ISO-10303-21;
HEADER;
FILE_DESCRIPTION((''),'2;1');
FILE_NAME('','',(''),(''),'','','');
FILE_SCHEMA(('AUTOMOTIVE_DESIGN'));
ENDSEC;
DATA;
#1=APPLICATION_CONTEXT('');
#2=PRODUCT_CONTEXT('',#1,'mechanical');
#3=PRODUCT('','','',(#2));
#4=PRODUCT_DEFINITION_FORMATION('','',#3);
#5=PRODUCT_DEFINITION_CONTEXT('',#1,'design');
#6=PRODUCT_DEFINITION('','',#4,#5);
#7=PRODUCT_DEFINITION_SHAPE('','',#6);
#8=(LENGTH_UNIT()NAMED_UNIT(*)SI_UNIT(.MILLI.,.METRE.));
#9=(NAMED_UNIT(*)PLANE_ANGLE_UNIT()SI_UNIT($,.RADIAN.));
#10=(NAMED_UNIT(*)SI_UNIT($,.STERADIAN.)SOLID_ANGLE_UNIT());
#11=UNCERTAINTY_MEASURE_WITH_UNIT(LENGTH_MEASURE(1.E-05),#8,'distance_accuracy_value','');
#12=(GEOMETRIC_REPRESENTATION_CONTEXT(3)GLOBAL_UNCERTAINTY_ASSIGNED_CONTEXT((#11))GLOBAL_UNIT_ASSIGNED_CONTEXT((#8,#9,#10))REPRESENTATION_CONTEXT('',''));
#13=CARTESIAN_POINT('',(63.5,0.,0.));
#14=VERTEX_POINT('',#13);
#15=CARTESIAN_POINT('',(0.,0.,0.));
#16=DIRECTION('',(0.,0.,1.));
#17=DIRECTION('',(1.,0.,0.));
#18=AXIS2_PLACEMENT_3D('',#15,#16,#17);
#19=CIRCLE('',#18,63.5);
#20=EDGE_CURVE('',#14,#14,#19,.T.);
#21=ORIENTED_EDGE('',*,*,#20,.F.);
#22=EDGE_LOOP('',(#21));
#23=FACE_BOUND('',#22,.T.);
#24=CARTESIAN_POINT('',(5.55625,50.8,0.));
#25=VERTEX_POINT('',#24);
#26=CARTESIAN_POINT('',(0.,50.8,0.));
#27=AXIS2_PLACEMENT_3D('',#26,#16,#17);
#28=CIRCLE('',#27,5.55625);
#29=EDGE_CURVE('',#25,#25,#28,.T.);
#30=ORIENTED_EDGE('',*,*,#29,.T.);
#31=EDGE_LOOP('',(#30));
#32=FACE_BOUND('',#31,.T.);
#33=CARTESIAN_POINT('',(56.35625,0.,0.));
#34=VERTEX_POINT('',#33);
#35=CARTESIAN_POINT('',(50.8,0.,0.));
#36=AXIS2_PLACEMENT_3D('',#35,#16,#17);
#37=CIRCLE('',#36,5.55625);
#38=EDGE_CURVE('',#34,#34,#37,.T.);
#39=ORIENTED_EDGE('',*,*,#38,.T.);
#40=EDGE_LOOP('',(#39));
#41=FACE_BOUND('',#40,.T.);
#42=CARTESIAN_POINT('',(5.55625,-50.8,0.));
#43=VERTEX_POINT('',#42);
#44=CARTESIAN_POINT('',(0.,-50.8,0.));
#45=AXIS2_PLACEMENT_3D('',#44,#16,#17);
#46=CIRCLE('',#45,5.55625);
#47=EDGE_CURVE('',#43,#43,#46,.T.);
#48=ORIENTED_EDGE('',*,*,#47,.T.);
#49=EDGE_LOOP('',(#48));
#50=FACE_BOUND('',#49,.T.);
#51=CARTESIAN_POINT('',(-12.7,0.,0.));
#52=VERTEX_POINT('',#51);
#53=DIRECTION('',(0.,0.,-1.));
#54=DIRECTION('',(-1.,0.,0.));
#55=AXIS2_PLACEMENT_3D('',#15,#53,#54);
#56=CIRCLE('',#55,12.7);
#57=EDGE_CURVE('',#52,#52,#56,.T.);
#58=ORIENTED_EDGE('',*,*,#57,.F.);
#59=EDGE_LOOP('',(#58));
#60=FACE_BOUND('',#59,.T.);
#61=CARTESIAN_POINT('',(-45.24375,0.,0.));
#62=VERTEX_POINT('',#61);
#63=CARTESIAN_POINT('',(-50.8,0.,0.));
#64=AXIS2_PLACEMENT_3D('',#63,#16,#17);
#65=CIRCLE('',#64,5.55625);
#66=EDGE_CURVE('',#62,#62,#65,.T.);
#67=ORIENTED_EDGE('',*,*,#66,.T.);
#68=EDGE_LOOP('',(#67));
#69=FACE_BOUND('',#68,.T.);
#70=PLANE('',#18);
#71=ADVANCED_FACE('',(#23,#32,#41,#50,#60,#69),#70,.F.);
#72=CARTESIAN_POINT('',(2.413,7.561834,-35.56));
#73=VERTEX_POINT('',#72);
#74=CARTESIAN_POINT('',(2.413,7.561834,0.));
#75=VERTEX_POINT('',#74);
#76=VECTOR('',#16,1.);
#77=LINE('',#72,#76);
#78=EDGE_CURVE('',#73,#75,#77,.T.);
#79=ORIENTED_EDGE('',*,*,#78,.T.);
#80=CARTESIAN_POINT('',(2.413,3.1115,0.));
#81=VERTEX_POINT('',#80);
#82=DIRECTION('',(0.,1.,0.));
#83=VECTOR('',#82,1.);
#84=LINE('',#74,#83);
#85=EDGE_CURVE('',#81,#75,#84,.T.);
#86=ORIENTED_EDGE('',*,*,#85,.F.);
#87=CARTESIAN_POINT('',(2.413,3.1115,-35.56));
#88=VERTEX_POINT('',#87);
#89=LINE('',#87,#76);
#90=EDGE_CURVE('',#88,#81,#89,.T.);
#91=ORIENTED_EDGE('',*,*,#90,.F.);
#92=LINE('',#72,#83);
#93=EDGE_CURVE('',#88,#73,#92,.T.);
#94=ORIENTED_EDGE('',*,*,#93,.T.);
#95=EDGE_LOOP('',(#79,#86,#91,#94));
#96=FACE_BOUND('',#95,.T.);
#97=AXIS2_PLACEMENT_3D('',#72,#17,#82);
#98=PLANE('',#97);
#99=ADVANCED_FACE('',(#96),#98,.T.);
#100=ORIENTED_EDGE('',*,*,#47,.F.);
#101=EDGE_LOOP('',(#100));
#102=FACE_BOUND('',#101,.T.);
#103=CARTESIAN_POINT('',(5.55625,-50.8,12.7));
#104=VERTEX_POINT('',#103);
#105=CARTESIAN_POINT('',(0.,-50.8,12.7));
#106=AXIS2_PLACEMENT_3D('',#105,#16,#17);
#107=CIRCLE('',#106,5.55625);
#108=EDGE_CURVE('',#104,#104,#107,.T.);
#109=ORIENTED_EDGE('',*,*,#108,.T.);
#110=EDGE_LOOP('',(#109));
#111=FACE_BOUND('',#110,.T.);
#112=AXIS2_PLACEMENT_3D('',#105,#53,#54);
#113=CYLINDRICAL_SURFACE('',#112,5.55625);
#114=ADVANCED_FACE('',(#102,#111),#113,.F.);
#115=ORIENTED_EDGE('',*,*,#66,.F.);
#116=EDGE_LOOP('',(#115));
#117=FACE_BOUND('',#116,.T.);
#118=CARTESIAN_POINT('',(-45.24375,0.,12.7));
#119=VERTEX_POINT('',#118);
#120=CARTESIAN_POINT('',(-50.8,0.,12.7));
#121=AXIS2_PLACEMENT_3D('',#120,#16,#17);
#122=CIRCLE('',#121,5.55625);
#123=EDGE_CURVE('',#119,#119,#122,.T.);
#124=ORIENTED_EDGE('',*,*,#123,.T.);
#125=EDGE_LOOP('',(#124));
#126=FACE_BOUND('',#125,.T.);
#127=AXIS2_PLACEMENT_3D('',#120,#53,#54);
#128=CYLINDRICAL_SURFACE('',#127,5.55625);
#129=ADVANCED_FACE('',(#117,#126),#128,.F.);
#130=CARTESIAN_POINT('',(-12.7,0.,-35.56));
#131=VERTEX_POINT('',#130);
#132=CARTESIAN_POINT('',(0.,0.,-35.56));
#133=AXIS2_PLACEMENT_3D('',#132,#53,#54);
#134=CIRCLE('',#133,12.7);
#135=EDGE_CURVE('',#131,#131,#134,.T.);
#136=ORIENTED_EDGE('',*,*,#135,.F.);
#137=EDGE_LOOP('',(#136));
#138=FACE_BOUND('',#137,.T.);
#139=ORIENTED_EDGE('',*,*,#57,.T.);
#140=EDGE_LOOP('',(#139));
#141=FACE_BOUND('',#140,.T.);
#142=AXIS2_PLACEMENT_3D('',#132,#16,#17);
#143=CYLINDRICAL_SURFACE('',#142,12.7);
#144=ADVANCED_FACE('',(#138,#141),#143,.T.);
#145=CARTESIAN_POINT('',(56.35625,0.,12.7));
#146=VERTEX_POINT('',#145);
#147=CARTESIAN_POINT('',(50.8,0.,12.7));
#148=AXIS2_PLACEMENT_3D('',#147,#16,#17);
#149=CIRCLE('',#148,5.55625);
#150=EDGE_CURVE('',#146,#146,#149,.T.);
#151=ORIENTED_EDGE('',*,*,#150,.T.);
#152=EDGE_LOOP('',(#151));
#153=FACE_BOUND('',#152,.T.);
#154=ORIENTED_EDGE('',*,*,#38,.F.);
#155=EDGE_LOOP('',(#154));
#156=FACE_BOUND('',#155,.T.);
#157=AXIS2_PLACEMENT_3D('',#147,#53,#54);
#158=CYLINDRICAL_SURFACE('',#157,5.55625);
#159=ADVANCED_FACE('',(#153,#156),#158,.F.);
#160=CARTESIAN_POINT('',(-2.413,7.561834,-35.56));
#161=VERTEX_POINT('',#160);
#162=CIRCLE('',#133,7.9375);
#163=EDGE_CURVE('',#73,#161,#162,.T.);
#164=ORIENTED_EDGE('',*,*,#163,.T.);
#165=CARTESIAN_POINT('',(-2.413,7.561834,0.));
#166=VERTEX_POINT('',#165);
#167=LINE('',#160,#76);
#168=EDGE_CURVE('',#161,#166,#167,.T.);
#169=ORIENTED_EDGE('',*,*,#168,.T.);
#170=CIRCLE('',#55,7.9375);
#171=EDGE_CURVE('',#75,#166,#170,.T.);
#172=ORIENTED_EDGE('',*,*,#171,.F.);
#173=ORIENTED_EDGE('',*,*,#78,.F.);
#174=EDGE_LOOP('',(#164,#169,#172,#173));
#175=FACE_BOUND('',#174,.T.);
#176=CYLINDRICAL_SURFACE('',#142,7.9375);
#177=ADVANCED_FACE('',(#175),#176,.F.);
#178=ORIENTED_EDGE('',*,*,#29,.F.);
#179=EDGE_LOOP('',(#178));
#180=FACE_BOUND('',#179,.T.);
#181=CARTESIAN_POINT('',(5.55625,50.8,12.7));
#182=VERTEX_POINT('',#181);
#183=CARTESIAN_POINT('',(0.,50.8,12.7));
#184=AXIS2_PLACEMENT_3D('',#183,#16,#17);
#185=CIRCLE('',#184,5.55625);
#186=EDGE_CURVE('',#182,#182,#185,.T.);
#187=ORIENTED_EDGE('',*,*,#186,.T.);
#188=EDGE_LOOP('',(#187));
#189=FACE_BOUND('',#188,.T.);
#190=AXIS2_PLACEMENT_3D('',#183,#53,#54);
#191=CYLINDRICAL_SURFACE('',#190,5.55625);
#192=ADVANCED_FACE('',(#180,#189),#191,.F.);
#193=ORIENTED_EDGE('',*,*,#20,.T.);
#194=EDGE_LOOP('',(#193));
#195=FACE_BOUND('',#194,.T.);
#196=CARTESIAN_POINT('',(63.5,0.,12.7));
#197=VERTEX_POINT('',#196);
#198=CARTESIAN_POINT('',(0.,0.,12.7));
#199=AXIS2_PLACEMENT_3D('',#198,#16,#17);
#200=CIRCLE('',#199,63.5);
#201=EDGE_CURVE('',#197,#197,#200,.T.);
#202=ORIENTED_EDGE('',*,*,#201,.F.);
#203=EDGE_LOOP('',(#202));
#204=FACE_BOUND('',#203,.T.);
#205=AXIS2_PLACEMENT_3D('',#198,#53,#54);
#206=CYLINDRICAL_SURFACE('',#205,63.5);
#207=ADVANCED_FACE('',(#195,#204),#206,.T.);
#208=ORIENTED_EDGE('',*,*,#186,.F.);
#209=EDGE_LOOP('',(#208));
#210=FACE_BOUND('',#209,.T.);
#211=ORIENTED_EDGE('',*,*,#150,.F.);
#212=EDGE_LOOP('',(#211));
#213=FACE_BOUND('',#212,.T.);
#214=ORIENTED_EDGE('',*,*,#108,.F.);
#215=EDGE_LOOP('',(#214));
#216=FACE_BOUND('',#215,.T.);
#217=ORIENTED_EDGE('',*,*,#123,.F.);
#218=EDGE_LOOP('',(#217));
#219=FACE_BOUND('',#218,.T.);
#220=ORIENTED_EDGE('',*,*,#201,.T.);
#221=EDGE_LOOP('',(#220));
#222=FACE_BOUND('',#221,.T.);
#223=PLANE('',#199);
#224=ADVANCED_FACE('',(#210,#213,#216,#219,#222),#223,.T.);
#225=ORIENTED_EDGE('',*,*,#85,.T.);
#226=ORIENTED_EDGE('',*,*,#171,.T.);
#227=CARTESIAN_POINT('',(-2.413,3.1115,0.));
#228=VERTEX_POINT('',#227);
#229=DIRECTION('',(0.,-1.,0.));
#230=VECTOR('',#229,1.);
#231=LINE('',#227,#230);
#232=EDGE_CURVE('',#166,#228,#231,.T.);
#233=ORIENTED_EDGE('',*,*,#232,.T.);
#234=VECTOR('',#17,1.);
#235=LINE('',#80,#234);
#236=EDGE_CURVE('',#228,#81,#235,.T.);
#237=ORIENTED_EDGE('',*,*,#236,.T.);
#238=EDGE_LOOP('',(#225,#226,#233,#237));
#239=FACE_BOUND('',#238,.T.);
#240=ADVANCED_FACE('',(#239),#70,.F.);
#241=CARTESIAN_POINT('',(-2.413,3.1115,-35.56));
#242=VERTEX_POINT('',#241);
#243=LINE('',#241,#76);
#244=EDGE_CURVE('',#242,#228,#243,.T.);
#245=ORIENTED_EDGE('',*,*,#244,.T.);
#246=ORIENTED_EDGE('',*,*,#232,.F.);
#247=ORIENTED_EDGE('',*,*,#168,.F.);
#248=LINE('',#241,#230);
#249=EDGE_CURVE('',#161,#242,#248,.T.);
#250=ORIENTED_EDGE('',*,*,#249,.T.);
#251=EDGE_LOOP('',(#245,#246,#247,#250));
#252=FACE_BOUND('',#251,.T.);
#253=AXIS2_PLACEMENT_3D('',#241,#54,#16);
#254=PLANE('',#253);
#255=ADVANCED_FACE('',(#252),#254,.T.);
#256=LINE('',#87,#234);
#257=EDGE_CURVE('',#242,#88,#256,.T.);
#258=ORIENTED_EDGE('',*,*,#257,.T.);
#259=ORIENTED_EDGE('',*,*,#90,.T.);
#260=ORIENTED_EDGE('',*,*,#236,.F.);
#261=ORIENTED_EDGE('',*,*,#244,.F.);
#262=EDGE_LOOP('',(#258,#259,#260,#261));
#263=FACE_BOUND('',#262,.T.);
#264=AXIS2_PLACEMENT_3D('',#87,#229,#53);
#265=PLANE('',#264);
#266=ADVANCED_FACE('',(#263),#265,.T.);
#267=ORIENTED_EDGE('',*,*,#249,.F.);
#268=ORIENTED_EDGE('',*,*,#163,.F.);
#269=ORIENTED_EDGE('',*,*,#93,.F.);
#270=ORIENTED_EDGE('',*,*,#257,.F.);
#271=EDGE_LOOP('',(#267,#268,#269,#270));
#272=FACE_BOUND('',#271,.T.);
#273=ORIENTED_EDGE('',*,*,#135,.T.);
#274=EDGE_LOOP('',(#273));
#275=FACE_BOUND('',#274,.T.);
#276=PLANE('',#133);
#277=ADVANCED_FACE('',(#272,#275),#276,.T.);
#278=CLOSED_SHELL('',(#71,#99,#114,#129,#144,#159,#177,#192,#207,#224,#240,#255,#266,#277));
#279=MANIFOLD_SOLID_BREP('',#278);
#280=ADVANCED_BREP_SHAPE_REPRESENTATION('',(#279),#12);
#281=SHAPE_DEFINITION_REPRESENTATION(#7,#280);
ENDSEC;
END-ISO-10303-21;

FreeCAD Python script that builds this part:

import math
import FreeCAD as App
import Part
import Sketcher
Q = App.Units.Quantity

doc = App.newDocument("Part")
body = doc.addObject("PartDesign::Body", "Body")

sketch1 = body.newObject("Sketcher::SketchObject", "Sketch")
sketch1.AttachmentSupport = (doc.getObject("XY_Plane"), [""])
sketch1.MapMode = "FlatFace"
sketch1.addGeometry([
    Part.Circle(App.Vector(0, 0, 0), App.Vector(0, 0, 1), 64),
    Part.Circle(App.Vector(0, -51, 0), App.Vector(0, 0, 1), 6),
    Part.Circle(App.Vector(-51, 0, 0), App.Vector(0, 0, 1), 6),
    Part.Circle(App.Vector(51, 0, 0), App.Vector(0, 0, 1), 6),
    Part.Circle(App.Vector(0, 51, 0), App.Vector(0, 0, 1), 6),
], False)
sketch1.addConstraint([
    Sketcher.Constraint("Coincident", 0, 3, -1, 1),
    Sketcher.Constraint("Equal", 1, 2),
    Sketcher.Constraint("Equal", 2, 3),
    Sketcher.Constraint("Equal", 3, 4),
    Sketcher.Constraint("Symmetric", 2, 3, 3, 3, -1, 1),
    Sketcher.Constraint("Symmetric", 1, 3, 4, 3, -1, 1),
    Sketcher.Constraint("PointOnObject", 1, 3, -2),
    Sketcher.Constraint("PointOnObject", 2, 3, -1),
    Sketcher.Constraint("Diameter", 0, Q("5 in")),
    Sketcher.Constraint("Diameter", 1, Q("0.4375 in")),
    Sketcher.Constraint("DistanceY", 1, 3, -1, 1, Q("2 in")),
    Sketcher.Constraint("DistanceX", 2, 3, -1, 1, Q("2 in")),
])
pad1 = body.newObject("PartDesign::Pad", "Pad")
pad1.Profile = sketch1
pad1.Length = Q("0.5 in")

sketch2 = body.newObject("Sketcher::SketchObject", "Sketch001")
sketch2.AttachmentSupport = (doc.getObject("XY_Plane"), [""])
sketch2.MapMode = "FlatFace"
sketch2.addGeometry([
    Part.Circle(App.Vector(0, 0, 0), App.Vector(0, 0, 1), 12.7),
    Part.ArcOfCircle(Part.Circle(App.Vector(0, 0, 0), App.Vector(0, 0, 1), 7.9), math.radians(108), math.radians(432)),
    Part.LineSegment(App.Vector(2.4, 7.6, 0), App.Vector(2.4, 3.1, 0)),
    Part.LineSegment(App.Vector(2.4, 3.1, 0), App.Vector(-2.4, 3.1, 0)),
    Part.LineSegment(App.Vector(-2.4, 3.1, 0), App.Vector(-2.4, 7.6, 0)),
], False)
sketch2.addConstraint([
    Sketcher.Constraint("Coincident", 1, 2, 2, 1),
    Sketcher.Constraint("Coincident", 2, 2, 3, 1),
    Sketcher.Constraint("Coincident", 3, 2, 4, 1),
    Sketcher.Constraint("Coincident", 4, 2, 1, 1),
    Sketcher.Constraint("Vertical", 2),
    Sketcher.Constraint("Horizontal", 3),
    Sketcher.Constraint("Vertical", 4),
    Sketcher.Constraint("Coincident", 0, 3, -1, 1),
    Sketcher.Constraint("Coincident", 1, 3, -1, 1),
    Sketcher.Constraint("Horizontal", 1, 2, 4, 2),
    Sketcher.Constraint("Diameter", 0, Q("1 in")),
    Sketcher.Constraint("Radius", 1, Q("0.3125 in")),
    Sketcher.Constraint("DistanceX", 3, 2, 3, 1, Q("0.19 in")),
    Sketcher.Constraint("DistanceY", -1, 1, 2, 2, Q("0.1225 in")),
])
pad2 = body.newObject("PartDesign::Pad", "Pad001")
pad2.Profile = sketch2
pad2.Length = Q("1.4 in")
pad2.Reversed = True

doc.recompute()
